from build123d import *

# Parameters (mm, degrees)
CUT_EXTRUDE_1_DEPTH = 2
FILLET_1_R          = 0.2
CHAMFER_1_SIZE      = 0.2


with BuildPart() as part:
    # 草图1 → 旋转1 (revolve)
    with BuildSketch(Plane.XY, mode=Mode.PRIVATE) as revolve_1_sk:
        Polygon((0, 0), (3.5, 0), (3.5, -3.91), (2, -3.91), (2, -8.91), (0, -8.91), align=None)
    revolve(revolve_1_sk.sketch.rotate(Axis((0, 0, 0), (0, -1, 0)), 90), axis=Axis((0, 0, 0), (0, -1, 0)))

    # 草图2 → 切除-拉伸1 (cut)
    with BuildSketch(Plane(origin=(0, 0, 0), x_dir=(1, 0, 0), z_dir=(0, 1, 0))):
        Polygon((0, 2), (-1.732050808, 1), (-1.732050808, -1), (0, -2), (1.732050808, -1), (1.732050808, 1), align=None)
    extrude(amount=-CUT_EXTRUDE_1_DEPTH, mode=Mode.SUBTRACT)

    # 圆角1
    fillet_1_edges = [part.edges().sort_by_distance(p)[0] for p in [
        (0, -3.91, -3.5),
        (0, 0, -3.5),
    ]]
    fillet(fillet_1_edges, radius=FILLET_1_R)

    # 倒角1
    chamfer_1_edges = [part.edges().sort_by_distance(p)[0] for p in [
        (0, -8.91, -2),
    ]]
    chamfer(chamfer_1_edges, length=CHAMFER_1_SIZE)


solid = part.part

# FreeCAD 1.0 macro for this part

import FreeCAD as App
import Part
import Sketcher

V = App.Vector
Q = App.Units.Quantity


def edges_at(feature, points):
    """Names of the edges that pass closest to the given points."""
    edges = feature.Shape.Edges
    near = lambda p: min(range(len(edges)), key=lambda i: edges[i].distToShape(Part.Vertex(*p))[0])
    return sorted({f"Edge{near(p) + 1}" for p in points})

doc = App.newDocument("Part")
body = doc.addObject("PartDesign::Body", "Body")

# Sketch on XY plane
sketch1 = body.newObject("Sketcher::SketchObject", "Sketch")
sketch1.AttachmentSupport = (doc.getObject("XY_Plane"), [""])
sketch1.MapMode = "FlatFace"
sketch1.addGeometry([
    Part.LineSegment(V(3.5, 0, 0), V(0, 0, 0)),  # 0
    Part.LineSegment(V(0, 0, 0), V(0, -8.91, 0)),  # 1
    Part.LineSegment(V(0, -8.91, 0), V(2, -8.91, 0)),  # 2
    Part.LineSegment(V(2, -8.91, 0), V(2, -3.91, 0)),  # 3
    Part.LineSegment(V(2, -3.91, 0), V(3.5, -3.91, 0)),  # 4
    Part.LineSegment(V(3.5, -3.91, 0), V(3.5, 0, 0)),  # 5
], False)
sketch1.addConstraint([
    Sketcher.Constraint("Coincident", 0, 2, 1, 1),
    Sketcher.Constraint("Coincident", 1, 2, 2, 1),
    Sketcher.Constraint("Coincident", 2, 2, 3, 1),
    Sketcher.Constraint("Coincident", 3, 2, 4, 1),
    Sketcher.Constraint("Coincident", 4, 2, 5, 1),
    Sketcher.Constraint("Coincident", 5, 2, 0, 1),
    Sketcher.Constraint("Horizontal", 0),
    Sketcher.Constraint("Vertical", 1),
    Sketcher.Constraint("Horizontal", 2),
    Sketcher.Constraint("Vertical", 3),
    Sketcher.Constraint("Horizontal", 4),
    Sketcher.Constraint("Vertical", 5),
    Sketcher.Constraint("Coincident", 0, 2, -1, 1),
    Sketcher.Constraint("DistanceX", 2, 1, 2, 2, Q("2 mm")),
    Sketcher.Constraint("DistanceY", 3, 1, 3, 2, Q("5 mm")),
    Sketcher.Constraint("DistanceX", 0, 2, 0, 1, Q("3.5 mm")),
    Sketcher.Constraint("DistanceY", 1, 2, 1, 1, Q("8.91 mm")),
])
revolution = body.newObject("PartDesign::Revolution", "Revolution")
revolution.Profile = sketch1
revolution.ReferenceAxis = (sketch1, ["V_Axis"])
revolution.Angle = 360

# Sketch on XZ plane
sketch2 = body.newObject("Sketcher::SketchObject", "Sketch001")
sketch2.AttachmentSupport = (doc.getObject("XZ_Plane"), [""])
sketch2.MapMode = "FlatFace"
sketch2.addGeometry([
    Part.LineSegment(V(0, -2, 0), V(-1.732051, -1, 0)),  # 0
    Part.LineSegment(V(-1.732051, -1, 0), V(-1.732051, 1, 0)),  # 1
    Part.LineSegment(V(-1.732051, 1, 0), V(0, 2, 0)),  # 2
    Part.LineSegment(V(0, 2, 0), V(1.732051, 1, 0)),  # 3
    Part.LineSegment(V(1.732051, 1, 0), V(1.732051, -1, 0)),  # 4
    Part.LineSegment(V(1.732051, -1, 0), V(0, -2, 0)),  # 5
], False)
sketch2.addConstraint([
    Sketcher.Constraint("Coincident", 0, 2, 1, 1),
    Sketcher.Constraint("Coincident", 1, 2, 2, 1),
    Sketcher.Constraint("Coincident", 2, 2, 3, 1),
    Sketcher.Constraint("Coincident", 3, 2, 4, 1),
    Sketcher.Constraint("Coincident", 4, 2, 5, 1),
    Sketcher.Constraint("Coincident", 5, 2, 0, 1),
    Sketcher.Constraint("Vertical", 1),
    Sketcher.Constraint("Vertical", 4),
    Sketcher.Constraint("Symmetric", 0, 2, 3, 2, -1, 1),
    Sketcher.Constraint("Symmetric", 2, 2, 5, 2, -1, 1),
    Sketcher.Constraint("PointOnObject", 2, 2, -2),
    Sketcher.Constraint("Parallel", 2, 5),
    Sketcher.Constraint("Horizontal", 1, 2, 3, 2),
    Sketcher.Constraint("DistanceY", 1, 1, 1, 2, Q("2 mm")),
    Sketcher.Constraint("Angle", 0, Q("150 deg")),
    Sketcher.Constraint("Distance", 0, Q("2 mm")),
])
pocket1 = body.newObject("PartDesign::Pocket", "Pocket")
pocket1.Profile = sketch2
pocket1.Length = 2
pocket1.Reversed = True
doc.recompute()

fillet = body.newObject("PartDesign::Fillet", "Fillet")
fillet.Base = (pocket1, edges_at(pocket1, [(0, -3.91, -3.5), (0, 0, -3.5)]))
fillet.Radius = 0.2
doc.recompute()

chamfer = body.newObject("PartDesign::Chamfer", "Chamfer")
chamfer.Base = (fillet, edges_at(fillet, [(0, -8.91, -2)]))
chamfer.Size = 0.2

doc.recompute()
